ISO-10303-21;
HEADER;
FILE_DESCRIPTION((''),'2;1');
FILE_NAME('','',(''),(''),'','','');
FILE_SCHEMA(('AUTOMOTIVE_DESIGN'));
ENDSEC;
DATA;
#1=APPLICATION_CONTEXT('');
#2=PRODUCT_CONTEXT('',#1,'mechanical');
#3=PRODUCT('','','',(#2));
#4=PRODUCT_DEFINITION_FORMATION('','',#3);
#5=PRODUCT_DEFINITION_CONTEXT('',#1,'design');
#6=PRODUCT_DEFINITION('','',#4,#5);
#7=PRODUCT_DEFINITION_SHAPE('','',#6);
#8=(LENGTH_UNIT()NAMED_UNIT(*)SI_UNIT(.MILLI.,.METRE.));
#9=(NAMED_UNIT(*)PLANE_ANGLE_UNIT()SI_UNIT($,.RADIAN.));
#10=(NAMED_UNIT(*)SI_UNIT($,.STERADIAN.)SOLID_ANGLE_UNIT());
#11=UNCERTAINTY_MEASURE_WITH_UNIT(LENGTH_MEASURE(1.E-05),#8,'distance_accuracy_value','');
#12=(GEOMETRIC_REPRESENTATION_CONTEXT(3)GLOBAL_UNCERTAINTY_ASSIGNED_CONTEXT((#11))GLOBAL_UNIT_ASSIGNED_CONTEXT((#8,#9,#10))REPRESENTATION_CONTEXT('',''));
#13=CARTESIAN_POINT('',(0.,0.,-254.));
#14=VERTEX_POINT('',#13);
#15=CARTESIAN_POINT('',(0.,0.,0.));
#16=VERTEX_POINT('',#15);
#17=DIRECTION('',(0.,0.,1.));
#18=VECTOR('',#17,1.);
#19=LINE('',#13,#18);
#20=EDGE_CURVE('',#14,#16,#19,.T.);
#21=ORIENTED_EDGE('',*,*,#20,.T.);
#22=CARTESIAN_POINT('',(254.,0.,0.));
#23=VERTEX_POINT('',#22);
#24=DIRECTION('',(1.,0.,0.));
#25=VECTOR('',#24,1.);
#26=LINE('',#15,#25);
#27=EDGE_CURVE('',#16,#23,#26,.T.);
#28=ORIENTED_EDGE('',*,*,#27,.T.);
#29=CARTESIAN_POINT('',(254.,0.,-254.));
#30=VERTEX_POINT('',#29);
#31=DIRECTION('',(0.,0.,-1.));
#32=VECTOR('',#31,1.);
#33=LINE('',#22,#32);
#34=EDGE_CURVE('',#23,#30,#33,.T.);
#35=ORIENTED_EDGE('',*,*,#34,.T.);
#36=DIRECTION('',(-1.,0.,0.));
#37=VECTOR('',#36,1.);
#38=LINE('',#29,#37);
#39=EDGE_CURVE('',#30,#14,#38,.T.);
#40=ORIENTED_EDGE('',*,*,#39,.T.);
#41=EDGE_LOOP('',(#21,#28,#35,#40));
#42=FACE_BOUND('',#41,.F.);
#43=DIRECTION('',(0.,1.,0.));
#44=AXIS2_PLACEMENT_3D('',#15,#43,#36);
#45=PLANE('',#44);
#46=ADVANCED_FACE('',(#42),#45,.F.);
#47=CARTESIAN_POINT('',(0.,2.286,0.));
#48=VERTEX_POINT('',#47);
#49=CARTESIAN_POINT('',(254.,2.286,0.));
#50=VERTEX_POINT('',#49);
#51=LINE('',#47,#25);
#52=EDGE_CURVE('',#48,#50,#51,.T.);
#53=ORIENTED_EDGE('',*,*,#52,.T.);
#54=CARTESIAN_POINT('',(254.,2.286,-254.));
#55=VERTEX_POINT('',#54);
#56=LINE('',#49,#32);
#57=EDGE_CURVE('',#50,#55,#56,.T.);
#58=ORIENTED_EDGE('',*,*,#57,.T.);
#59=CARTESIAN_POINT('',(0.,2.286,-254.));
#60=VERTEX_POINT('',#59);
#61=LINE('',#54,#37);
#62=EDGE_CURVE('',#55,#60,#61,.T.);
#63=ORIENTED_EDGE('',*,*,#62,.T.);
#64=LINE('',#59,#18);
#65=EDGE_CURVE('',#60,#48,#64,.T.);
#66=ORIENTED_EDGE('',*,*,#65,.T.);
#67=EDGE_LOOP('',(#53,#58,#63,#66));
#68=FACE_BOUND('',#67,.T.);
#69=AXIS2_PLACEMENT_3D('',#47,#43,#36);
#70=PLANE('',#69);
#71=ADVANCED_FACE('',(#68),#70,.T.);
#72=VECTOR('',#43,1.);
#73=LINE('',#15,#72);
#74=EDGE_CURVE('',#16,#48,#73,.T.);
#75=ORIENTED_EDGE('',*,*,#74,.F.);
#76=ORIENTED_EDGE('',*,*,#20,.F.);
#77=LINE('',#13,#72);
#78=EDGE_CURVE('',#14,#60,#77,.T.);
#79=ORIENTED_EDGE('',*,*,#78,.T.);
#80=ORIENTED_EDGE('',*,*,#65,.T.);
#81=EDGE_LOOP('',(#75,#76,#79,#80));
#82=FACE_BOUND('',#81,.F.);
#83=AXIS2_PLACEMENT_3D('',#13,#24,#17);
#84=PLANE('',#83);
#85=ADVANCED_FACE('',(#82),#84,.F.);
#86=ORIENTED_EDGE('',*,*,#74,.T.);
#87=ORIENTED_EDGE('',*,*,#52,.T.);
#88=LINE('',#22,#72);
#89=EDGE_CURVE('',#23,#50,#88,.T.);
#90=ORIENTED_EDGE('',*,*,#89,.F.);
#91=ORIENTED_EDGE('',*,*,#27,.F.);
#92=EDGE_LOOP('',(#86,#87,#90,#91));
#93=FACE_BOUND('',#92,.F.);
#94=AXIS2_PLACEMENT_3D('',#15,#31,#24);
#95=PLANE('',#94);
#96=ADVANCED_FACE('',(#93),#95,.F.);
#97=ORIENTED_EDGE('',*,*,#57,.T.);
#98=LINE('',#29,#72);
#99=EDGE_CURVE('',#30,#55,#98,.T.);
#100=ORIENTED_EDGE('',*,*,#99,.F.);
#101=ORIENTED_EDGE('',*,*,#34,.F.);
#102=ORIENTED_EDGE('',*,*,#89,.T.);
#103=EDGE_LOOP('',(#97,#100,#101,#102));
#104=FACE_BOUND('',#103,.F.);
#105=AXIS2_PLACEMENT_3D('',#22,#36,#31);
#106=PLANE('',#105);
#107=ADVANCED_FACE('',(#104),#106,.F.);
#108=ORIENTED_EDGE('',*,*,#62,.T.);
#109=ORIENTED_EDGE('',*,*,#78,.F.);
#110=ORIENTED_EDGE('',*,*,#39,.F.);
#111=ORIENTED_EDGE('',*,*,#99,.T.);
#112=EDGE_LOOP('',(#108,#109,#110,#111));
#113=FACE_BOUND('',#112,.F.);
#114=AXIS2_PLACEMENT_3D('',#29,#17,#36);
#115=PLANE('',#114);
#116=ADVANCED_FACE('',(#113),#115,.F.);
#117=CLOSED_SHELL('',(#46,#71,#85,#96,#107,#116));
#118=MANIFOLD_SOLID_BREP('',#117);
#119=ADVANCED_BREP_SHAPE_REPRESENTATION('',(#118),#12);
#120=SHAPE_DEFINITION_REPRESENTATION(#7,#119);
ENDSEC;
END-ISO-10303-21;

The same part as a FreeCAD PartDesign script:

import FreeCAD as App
import Part
import Sketcher
Q = App.Units.Quantity

doc = App.newDocument("Part")
body = doc.addObject("PartDesign::Body", "Body")

sketch1 = doc.addObject("Sketcher::SketchObject", "Sketch")
body.addObject(sketch1)
sketch1.AttachmentSupport = (doc.XZ_Plane, [""])
sketch1.MapMode = "FlatFace"
sketch1.addGeometry(Part.LineSegment(App.Vector(0, -254, 0), App.Vector(0, 0, 0)), False)
sketch1.addGeometry(Part.LineSegment(App.Vector(0, 0, 0), App.Vector(254, 0, 0)), False)
sketch1.addGeometry(Part.LineSegment(App.Vector(254, 0, 0), App.Vector(254, -254, 0)), False)
sketch1.addGeometry(Part.LineSegment(App.Vector(254, -254, 0), App.Vector(0, -254, 0)), False)
sketch1.addConstraint(Sketcher.Constraint("Coincident", 0, 2, 1, 1))
sketch1.addConstraint(Sketcher.Constraint("Coincident", 1, 2, 2, 1))
sketch1.addConstraint(Sketcher.Constraint("Coincident", 2, 2, 3, 1))
sketch1.addConstraint(Sketcher.Constraint("Coincident", 3, 2, 0, 1))
sketch1.addConstraint(Sketcher.Constraint("Vertical", 0))
sketch1.addConstraint(Sketcher.Constraint("Horizontal", 1))
sketch1.addConstraint(Sketcher.Constraint("Vertical", 2))
sketch1.addConstraint(Sketcher.Constraint("Horizontal", 3))
sketch1.addConstraint(Sketcher.Constraint("Coincident", 0, 2, -1, 1))
sketch1.addConstraint(Sketcher.Constraint("Equal", 3, 0))
sketch1.addConstraint(Sketcher.Constraint("DistanceX", 1, 1, 1, 2, Q("10 in")))
pad1 = doc.addObject("PartDesign::Pad", "Pad")
body.addObject(pad1)
pad1.Profile = sketch1
pad1.Length = Q("0.09 in")
pad1.Reversed = True

doc.recompute()
